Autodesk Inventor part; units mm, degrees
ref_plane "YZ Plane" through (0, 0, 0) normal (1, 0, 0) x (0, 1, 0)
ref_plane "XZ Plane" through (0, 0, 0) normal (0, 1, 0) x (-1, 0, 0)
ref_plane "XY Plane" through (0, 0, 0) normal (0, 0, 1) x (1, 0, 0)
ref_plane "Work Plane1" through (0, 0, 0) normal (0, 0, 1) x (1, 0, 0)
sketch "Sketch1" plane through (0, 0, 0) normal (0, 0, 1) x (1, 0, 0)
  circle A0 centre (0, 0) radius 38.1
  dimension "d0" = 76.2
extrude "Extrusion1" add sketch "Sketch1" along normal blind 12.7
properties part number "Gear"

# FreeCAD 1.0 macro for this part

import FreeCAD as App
import Part
import Sketcher
from FreeCAD import Vector
Q = App.Units.Quantity

doc = App.newDocument("Part")
body = doc.addObject("PartDesign::Body", "Body")

sketch1 = doc.addObject("Sketcher::SketchObject", "Sketch")
body.addObject(sketch1)
sketch1.AttachmentSupport = (doc.XY_Plane, [""])
sketch1.MapMode = "FlatFace"
sketch1.addGeometry(Part.Circle(Vector(0, 0, 0), Vector(0, 0, 1), 38.1), False)
sketch1.addConstraint(Sketcher.Constraint("Coincident", 0, 3, -1, 1))
sketch1.addConstraint(Sketcher.Constraint("Diameter", 0, Q("3 in")))
pad1 = doc.addObject("PartDesign::Pad", "Pad")
body.addObject(pad1)
pad1.Profile = sketch1
pad1.Length = Q("0.5 in")

doc.recompute()
